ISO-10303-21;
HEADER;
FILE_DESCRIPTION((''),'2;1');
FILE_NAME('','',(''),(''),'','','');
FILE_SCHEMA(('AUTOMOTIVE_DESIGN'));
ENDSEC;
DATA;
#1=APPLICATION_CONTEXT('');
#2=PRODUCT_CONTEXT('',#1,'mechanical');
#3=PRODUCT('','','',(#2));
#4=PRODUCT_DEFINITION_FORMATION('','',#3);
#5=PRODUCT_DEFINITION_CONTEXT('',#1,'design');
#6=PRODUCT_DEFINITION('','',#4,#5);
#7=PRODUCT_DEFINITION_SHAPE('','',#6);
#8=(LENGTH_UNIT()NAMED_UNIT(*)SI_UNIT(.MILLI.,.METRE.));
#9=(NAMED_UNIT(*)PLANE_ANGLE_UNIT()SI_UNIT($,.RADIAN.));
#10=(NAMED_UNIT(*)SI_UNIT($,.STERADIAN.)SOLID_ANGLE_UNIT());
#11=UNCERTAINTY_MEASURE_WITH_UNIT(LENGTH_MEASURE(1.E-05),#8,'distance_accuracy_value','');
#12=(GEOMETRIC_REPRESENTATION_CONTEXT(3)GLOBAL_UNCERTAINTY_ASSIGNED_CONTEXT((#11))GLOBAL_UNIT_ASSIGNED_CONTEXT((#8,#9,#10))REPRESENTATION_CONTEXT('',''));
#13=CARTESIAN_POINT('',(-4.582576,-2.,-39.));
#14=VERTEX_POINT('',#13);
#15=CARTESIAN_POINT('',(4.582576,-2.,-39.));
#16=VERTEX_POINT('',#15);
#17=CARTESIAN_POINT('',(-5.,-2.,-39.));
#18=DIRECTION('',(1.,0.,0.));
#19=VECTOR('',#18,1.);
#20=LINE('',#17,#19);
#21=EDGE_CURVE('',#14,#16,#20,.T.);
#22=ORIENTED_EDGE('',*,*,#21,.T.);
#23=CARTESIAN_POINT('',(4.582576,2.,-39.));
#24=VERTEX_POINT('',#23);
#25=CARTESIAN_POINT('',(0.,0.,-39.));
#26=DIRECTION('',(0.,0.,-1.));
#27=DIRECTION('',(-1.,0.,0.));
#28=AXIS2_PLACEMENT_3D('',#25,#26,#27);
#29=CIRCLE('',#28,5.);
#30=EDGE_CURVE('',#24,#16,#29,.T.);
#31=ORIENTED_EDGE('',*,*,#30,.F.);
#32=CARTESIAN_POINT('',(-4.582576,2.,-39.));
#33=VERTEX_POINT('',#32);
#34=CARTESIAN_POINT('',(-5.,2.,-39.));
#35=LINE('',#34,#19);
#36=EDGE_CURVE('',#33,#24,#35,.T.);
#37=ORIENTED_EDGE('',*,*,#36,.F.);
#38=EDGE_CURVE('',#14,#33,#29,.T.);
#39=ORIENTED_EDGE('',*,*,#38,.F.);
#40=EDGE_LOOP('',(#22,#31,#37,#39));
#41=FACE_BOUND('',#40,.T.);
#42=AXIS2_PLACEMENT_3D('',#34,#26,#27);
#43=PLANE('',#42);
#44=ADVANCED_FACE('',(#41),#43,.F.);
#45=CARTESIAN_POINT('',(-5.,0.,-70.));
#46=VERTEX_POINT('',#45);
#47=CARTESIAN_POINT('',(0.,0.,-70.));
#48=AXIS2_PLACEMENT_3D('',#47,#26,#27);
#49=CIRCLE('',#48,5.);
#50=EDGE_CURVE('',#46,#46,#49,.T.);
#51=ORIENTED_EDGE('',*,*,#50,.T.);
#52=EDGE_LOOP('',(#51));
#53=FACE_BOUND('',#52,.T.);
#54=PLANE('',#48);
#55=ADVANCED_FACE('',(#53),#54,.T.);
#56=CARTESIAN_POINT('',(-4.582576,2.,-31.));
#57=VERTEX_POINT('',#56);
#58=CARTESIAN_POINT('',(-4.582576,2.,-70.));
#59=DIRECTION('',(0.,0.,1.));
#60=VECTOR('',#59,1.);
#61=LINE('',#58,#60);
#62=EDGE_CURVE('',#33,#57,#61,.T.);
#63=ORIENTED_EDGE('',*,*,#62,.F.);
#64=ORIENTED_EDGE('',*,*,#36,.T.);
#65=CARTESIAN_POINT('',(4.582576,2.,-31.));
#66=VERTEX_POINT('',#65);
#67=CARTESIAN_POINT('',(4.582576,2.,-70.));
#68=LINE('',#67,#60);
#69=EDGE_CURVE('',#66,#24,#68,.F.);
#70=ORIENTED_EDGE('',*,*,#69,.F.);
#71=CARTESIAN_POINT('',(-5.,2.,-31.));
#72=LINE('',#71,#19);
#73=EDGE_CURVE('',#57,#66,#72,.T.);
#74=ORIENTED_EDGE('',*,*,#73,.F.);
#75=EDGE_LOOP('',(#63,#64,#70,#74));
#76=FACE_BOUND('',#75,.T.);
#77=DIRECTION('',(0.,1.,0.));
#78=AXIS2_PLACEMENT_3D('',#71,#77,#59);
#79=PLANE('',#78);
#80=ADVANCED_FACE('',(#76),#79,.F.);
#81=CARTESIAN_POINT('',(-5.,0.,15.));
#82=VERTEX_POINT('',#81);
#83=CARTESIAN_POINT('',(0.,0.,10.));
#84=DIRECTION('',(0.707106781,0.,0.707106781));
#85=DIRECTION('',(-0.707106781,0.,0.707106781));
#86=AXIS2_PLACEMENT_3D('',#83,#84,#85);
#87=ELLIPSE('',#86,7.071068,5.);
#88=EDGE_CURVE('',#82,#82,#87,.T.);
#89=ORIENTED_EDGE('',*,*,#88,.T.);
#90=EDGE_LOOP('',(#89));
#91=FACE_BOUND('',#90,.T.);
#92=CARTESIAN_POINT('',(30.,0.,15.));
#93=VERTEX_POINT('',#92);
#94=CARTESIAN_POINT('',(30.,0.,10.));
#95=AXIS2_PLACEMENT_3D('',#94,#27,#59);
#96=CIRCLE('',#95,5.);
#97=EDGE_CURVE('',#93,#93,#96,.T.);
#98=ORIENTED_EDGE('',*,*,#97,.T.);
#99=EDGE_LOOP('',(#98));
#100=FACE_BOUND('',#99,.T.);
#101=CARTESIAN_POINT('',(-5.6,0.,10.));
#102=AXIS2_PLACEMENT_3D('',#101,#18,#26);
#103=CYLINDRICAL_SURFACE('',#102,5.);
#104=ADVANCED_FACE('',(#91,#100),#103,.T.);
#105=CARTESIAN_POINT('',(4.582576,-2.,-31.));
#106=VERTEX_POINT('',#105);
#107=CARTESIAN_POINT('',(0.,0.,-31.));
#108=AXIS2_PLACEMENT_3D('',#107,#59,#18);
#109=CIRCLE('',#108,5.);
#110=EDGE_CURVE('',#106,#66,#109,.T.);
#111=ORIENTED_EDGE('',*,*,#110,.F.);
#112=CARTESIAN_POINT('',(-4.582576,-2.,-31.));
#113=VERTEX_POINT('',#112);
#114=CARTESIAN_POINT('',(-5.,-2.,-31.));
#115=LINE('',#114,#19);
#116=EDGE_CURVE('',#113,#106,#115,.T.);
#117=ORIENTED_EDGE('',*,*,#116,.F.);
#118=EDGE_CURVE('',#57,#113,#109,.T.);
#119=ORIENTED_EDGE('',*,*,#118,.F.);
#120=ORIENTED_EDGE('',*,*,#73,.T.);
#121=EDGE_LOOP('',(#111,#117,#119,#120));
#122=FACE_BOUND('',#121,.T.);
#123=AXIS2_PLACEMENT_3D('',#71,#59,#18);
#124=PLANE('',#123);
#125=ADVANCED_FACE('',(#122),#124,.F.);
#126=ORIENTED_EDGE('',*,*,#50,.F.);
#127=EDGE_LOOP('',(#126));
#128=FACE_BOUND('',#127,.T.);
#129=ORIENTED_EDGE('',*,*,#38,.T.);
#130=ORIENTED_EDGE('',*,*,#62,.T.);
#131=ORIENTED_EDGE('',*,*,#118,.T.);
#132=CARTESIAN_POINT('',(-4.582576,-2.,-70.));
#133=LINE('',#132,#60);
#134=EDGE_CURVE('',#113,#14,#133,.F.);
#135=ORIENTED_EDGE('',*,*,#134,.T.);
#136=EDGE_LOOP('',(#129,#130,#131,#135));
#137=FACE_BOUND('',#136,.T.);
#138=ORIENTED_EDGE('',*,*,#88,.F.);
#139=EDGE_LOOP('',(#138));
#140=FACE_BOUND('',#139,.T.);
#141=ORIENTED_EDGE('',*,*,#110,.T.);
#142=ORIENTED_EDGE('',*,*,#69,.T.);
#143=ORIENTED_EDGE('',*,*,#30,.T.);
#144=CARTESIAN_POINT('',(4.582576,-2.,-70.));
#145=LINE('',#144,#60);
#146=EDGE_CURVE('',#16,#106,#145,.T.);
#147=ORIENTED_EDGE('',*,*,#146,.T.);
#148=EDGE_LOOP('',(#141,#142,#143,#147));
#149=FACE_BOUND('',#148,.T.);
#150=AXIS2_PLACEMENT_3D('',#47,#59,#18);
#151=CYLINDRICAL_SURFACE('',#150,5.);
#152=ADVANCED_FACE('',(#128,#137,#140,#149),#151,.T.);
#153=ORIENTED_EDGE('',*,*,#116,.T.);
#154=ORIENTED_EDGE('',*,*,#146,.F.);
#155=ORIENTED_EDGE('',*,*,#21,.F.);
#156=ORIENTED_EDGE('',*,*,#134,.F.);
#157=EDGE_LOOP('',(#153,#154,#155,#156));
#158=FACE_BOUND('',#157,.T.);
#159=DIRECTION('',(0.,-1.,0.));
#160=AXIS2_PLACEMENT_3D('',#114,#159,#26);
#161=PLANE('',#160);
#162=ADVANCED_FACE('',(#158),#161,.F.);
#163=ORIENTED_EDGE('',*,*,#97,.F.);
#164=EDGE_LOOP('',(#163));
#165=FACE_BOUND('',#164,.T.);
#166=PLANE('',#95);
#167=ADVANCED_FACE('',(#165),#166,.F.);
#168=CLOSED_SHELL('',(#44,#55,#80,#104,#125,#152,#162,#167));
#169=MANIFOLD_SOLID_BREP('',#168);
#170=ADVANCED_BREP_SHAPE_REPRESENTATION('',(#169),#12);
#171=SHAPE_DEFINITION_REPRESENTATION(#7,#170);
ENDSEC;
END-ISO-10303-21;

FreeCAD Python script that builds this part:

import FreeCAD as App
import Part
import Sketcher
Q = App.Units.Quantity


def add_polygon(sketch, points):
    """Adds a closed chain of lines whose ends are joined by coincident constraints."""
    first, n = sketch.GeometryCount, len(points)
    for a, b in zip(points, points[1:] + points[:1]):
        sketch.addGeometry(Part.LineSegment(App.Vector(*a, 0), App.Vector(*b, 0)), False)
    for i in range(n):
        sketch.addConstraint(Sketcher.Constraint("Coincident", first + i, 2, first + (i + 1) % n, 1))

doc = App.newDocument("Part")
body = doc.addObject("PartDesign::Body", "Body")

# Sketch on XY plane
sketch1 = body.newObject("Sketcher::SketchObject", "Sketch")
sketch1.AttachmentSupport = (doc.getObject("XY_Plane"), [""])
sketch1.MapMode = "FlatFace"
sketch1.AttachmentOffset = App.Placement(App.Vector(0, 0, -70), App.Rotation())
sketch1.addGeometry(Part.Circle(App.Vector(0, 0, 0), App.Vector(0, 0, 1), 5), False)
sketch1.addConstraint(Sketcher.Constraint("Coincident", 0, 3, -1, 1))
sketch1.addConstraint(Sketcher.Constraint("Diameter", 0, Q("10 mm")))

# Sketch on XZ plane
sketch2 = body.newObject("Sketcher::SketchObject", "Sketch001")
sketch2.AttachmentSupport = (doc.getObject("XZ_Plane"), [""])
sketch2.MapMode = "FlatFace"
sketch2.addGeometry(Part.LineSegment(App.Vector(0, -70, 0), App.Vector(0, 10, 0)), False)
sketch2.addGeometry(Part.LineSegment(App.Vector(0, 10, 0), App.Vector(30, 10, 0)), False)
sketch2.addConstraint(Sketcher.Constraint("Coincident", 0, 2, 1, 1))
sketch2.addConstraint(Sketcher.Constraint("Vertical", 0))
sketch2.addConstraint(Sketcher.Constraint("Horizontal", 1))
sketch2.addConstraint(Sketcher.Constraint("PointOnObject", 0, 1, -2))
sketch2.addConstraint(Sketcher.Constraint("DistanceX", 1, 1, 1, 2, Q("30 mm")))
sketch2.addConstraint(Sketcher.Constraint("DistanceY", 0, 1, 0, 2, Q("80 mm")))
sketch2.addConstraint(Sketcher.Constraint("DistanceY", 0, 1, -1, 1, Q("70 mm")))
doc.recompute()

additivepipe = body.newObject("PartDesign::AdditivePipe", "AdditivePipe")
additivepipe.Profile = sketch1
additivepipe.Spine = (sketch2, ["Edge1", "Edge2"])
additivepipe.Transition = "Right corner"

# Sketch on YZ plane
sketch3 = body.newObject("Sketcher::SketchObject", "Sketch002")
sketch3.AttachmentSupport = (doc.getObject("YZ_Plane"), [""])
sketch3.MapMode = "FlatFace"
add_polygon(sketch3, [(2, -31), (-2, -31), (-2, -39), (2, -39)])  # lines 0-3
sketch3.addConstraint(Sketcher.Constraint("Horizontal", 0))
sketch3.addConstraint(Sketcher.Constraint("Vertical", 1))
sketch3.addConstraint(Sketcher.Constraint("Horizontal", 2))
sketch3.addConstraint(Sketcher.Constraint("Vertical", 3))
sketch3.addConstraint(Sketcher.Constraint("DistanceX", 0, 2, 0, 1, Q("4 mm")))
sketch3.addConstraint(Sketcher.Constraint("DistanceY", 1, 2, 1, 1, Q("8 mm")))
sketch3.addConstraint(Sketcher.Constraint("DistanceX", 0, 2, -1, 1, Q("2 mm")))
sketch3.addConstraint(Sketcher.Constraint("DistanceY", 0, 2, -1, 1, Q("31 mm")))
pocket1 = body.newObject("PartDesign::Pocket", "Pocket")
pocket1.Profile = sketch3
pocket1.Type = "ThroughAll"
pocket1.Midplane = True

doc.recompute()
